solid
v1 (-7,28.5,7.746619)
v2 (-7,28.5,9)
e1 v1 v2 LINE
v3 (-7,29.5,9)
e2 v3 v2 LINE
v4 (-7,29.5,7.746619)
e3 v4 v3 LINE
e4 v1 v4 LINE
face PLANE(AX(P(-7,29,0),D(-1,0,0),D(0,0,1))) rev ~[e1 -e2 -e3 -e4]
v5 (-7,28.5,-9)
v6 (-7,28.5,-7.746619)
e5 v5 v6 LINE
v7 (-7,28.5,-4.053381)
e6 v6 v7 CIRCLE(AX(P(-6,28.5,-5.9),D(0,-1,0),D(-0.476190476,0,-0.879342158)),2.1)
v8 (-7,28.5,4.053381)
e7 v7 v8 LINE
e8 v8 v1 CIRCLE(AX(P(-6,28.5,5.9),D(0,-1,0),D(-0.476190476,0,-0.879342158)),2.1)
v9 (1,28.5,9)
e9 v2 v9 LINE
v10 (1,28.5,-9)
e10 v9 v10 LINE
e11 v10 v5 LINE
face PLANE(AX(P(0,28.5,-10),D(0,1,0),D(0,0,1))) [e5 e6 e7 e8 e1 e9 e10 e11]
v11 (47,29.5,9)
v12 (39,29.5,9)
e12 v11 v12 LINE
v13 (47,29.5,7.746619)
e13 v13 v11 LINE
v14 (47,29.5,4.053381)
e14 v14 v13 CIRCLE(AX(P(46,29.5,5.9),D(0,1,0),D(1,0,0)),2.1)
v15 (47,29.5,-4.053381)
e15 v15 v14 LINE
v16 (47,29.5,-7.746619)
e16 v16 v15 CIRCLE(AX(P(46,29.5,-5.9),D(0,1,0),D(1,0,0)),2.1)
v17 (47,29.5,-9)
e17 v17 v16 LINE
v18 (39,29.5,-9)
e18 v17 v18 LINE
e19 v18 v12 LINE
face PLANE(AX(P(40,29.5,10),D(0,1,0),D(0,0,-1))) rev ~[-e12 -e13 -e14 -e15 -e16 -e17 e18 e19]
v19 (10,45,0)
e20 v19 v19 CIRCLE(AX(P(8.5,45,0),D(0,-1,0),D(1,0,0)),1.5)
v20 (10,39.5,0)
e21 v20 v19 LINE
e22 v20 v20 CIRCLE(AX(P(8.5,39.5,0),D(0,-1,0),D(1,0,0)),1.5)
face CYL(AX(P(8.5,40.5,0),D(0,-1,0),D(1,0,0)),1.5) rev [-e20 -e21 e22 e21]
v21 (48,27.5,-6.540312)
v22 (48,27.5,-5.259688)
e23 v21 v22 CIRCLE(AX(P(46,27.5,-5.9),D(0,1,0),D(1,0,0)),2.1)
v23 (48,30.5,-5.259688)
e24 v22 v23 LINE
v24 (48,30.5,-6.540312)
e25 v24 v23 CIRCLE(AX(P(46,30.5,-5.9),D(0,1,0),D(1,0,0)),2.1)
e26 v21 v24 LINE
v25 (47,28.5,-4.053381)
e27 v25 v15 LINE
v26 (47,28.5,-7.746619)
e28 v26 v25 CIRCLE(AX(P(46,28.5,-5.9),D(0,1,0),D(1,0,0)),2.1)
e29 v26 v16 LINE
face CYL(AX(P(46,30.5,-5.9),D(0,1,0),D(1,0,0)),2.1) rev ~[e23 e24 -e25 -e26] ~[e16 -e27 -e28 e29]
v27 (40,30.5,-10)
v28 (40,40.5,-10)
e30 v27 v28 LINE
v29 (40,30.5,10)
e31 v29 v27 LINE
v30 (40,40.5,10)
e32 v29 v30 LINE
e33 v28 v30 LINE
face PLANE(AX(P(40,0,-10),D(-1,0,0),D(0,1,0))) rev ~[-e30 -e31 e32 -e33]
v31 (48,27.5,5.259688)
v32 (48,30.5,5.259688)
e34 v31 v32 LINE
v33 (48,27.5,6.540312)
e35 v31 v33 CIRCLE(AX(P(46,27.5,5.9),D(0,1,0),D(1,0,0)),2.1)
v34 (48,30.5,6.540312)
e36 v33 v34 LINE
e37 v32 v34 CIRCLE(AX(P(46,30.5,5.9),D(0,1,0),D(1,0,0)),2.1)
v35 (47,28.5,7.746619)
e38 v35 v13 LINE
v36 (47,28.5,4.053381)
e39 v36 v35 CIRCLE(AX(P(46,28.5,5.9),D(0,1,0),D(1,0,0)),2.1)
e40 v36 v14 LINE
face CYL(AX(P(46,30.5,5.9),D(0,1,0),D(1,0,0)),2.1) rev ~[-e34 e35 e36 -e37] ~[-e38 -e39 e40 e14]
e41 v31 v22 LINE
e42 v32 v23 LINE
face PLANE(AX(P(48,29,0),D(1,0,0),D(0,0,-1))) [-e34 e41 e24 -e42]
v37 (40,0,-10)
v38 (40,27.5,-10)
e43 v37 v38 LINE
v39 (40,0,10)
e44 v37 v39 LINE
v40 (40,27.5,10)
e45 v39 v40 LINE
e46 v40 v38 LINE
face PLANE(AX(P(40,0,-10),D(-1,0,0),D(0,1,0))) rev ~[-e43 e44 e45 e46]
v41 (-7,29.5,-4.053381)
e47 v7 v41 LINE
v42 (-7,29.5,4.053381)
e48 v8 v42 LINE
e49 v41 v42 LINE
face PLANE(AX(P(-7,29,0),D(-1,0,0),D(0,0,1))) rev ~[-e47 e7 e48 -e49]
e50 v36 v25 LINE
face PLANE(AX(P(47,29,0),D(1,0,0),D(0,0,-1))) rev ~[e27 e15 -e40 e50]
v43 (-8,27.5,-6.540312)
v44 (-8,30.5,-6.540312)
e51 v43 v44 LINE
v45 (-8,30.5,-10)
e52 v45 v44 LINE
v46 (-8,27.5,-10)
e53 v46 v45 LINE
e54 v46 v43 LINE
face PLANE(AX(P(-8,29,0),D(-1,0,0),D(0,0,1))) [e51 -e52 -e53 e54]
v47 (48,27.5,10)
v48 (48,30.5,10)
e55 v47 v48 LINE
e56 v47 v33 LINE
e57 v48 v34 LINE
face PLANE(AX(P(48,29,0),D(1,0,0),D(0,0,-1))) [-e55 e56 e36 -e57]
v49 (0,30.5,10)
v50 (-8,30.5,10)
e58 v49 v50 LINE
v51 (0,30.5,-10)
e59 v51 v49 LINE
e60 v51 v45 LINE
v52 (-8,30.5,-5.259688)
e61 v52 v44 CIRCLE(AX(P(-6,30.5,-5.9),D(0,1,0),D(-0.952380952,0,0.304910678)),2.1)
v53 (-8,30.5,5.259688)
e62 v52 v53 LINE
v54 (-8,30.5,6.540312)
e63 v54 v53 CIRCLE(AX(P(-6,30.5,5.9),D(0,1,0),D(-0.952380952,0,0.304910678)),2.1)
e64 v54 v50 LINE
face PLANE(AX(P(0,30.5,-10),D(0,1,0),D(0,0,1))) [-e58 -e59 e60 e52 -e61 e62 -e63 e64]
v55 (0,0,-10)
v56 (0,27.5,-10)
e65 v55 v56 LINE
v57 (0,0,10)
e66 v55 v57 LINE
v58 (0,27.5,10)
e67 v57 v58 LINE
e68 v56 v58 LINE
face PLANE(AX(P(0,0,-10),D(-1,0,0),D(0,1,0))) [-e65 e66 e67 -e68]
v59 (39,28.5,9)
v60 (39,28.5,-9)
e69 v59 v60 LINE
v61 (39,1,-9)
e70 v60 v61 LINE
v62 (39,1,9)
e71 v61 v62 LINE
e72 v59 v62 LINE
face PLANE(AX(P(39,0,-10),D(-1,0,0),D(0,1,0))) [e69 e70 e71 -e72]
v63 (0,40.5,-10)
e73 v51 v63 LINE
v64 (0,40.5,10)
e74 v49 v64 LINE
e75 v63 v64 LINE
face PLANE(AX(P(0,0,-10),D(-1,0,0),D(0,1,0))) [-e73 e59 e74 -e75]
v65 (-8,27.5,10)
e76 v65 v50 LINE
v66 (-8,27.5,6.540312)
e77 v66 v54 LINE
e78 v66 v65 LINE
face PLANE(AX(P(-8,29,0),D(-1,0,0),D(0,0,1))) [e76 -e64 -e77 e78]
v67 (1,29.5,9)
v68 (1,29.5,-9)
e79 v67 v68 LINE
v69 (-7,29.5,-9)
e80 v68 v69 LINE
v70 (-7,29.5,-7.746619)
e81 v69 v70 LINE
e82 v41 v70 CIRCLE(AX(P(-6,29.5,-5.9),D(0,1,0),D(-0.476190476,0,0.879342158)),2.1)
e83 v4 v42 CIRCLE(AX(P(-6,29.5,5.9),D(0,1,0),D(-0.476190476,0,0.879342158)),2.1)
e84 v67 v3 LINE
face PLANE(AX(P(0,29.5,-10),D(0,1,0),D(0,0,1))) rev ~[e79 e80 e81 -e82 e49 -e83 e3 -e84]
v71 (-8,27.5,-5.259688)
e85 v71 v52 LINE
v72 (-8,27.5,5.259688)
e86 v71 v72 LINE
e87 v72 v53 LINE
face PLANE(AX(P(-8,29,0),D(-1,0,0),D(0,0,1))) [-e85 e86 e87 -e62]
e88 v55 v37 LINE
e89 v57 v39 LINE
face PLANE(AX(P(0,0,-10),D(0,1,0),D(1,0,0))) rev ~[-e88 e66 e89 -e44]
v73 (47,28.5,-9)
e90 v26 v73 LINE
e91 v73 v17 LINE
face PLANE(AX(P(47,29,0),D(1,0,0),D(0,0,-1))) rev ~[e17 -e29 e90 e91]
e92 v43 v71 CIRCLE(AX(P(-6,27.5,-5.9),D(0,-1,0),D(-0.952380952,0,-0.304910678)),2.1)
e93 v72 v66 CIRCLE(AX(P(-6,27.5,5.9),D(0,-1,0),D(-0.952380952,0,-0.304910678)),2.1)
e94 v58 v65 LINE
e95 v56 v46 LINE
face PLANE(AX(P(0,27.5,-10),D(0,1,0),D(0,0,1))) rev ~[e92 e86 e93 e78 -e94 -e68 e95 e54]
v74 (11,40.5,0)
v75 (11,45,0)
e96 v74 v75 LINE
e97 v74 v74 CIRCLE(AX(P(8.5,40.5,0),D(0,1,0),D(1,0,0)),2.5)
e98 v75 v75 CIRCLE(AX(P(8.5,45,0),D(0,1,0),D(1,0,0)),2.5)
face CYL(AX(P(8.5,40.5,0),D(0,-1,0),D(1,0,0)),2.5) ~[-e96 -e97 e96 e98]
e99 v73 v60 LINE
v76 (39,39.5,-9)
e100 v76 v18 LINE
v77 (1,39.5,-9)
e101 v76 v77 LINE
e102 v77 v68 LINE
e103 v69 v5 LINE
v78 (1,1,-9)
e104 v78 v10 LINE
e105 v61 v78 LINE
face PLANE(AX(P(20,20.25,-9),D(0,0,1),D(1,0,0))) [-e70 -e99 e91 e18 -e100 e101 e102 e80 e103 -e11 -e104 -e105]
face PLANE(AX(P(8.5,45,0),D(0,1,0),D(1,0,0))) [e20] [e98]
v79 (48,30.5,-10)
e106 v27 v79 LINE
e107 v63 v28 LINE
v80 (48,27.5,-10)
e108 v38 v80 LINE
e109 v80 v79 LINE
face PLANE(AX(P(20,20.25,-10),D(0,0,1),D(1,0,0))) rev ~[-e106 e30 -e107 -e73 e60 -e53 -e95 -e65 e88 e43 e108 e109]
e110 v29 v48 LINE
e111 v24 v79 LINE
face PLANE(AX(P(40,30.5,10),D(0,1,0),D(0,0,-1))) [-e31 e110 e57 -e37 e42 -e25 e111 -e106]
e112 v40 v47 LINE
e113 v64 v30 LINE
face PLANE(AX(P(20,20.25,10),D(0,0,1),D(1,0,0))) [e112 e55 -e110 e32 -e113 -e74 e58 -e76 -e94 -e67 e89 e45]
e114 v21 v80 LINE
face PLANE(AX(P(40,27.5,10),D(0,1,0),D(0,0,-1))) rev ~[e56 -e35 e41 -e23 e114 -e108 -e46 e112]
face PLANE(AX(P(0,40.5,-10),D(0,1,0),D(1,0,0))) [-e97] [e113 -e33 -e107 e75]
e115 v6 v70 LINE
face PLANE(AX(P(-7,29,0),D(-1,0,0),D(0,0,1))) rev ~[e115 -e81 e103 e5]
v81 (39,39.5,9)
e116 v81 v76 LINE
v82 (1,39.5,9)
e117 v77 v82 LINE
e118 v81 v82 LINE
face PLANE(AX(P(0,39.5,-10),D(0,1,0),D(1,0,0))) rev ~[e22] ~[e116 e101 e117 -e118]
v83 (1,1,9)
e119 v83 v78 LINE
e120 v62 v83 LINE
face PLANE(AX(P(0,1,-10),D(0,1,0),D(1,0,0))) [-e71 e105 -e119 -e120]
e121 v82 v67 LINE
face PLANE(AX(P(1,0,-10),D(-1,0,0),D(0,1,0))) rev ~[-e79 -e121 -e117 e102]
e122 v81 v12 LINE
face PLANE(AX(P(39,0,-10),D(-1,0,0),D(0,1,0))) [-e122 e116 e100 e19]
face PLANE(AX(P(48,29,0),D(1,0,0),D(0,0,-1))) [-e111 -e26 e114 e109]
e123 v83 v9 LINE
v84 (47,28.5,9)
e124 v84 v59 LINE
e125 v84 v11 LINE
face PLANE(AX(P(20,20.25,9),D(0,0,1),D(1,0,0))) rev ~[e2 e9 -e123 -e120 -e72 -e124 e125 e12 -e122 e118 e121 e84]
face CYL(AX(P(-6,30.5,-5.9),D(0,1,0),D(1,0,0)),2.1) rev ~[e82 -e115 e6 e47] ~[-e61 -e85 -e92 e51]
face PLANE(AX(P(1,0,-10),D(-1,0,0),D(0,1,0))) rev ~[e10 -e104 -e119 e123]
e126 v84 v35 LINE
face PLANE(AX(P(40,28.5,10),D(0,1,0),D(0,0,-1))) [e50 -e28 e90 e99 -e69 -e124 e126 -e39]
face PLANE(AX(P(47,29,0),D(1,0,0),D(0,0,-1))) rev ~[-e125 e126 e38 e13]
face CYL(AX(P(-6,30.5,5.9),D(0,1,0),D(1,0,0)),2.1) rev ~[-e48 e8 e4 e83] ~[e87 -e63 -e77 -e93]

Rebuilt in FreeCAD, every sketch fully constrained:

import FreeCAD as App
import Part
import Sketcher


def faces_at(feature, points):
    """Names of the faces that lie closest to the given points."""
    faces = feature.Shape.Faces
    near = lambda p: min(range(len(faces)), key=lambda i: faces[i].distToShape(Part.Vertex(*p))[0])
    return sorted({f"Face{near(p) + 1}" for p in points})

doc = App.newDocument("Part")
body = doc.addObject("PartDesign::Body", "Body")

sketch1 = body.newObject("Sketcher::SketchObject", "Sketch")
sketch1.AttachmentSupport = (doc.getObject("XY_Plane"), [""])
sketch1.MapMode = "FlatFace"
sketch1.addGeometry(Part.LineSegment(App.Vector(0, 40, 0), App.Vector(0, 0, 0)), False)
sketch1.addGeometry(Part.LineSegment(App.Vector(0, 0, 0), App.Vector(40, 0, 0)), False)
sketch1.addGeometry(Part.LineSegment(App.Vector(40, 0, 0), App.Vector(40, 40, 0)), False)
sketch1.addGeometry(Part.LineSegment(App.Vector(40, 40, 0), App.Vector(0, 40, 0)), False)
sketch1.addConstraint(Sketcher.Constraint("Coincident", 0, 2, 1, 1))
sketch1.addConstraint(Sketcher.Constraint("Coincident", 1, 2, 2, 1))
sketch1.addConstraint(Sketcher.Constraint("Coincident", 2, 2, 3, 1))
sketch1.addConstraint(Sketcher.Constraint("Coincident", 3, 2, 0, 1))
sketch1.addConstraint(Sketcher.Constraint("Vertical", 0))
sketch1.addConstraint(Sketcher.Constraint("Horizontal", 1))
sketch1.addConstraint(Sketcher.Constraint("Vertical", 2))
sketch1.addConstraint(Sketcher.Constraint("Horizontal", 3))
sketch1.addConstraint(Sketcher.Constraint("Coincident", 0, 2, -1, 1))
sketch1.addConstraint(Sketcher.Constraint("DistanceX", 1, 1, 1, 2, 40.0))
sketch1.addConstraint(Sketcher.Constraint("DistanceY", 0, 2, 0, 1, 40.5))
pad1 = body.newObject("PartDesign::Pad", "Pad")
pad1.Profile = sketch1
pad1.Type = "TwoLengths"
pad1.Length = 10
pad1.Length2 = 10

sketch2 = body.newObject("Sketcher::SketchObject", "Sketch001")
sketch2.AttachmentSupport = (doc.getObject("YZ_Plane"), [""])
sketch2.MapMode = "FlatFace"
sketch2.AttachmentOffset = App.Placement(App.Vector(0, 0, 40), App.Rotation())
sketch2.addGeometry(Part.LineSegment(App.Vector(30.5, 10, 0), App.Vector(27.5, 10, 0)), False)
sketch2.addGeometry(Part.LineSegment(App.Vector(27.5, 10, 0), App.Vector(27.5, -10, 0)), False)
sketch2.addGeometry(Part.LineSegment(App.Vector(27.5, -10, 0), App.Vector(30.5, -10, 0)), False)
sketch2.addGeometry(Part.LineSegment(App.Vector(30.5, -10, 0), App.Vector(30.5, 10, 0)), False)
sketch2.addConstraint(Sketcher.Constraint("Coincident", 0, 2, 1, 1))
sketch2.addConstraint(Sketcher.Constraint("Coincident", 1, 2, 2, 1))
sketch2.addConstraint(Sketcher.Constraint("Coincident", 2, 2, 3, 1))
sketch2.addConstraint(Sketcher.Constraint("Coincident", 3, 2, 0, 1))
sketch2.addConstraint(Sketcher.Constraint("Horizontal", 0))
sketch2.addConstraint(Sketcher.Constraint("Vertical", 1))
sketch2.addConstraint(Sketcher.Constraint("Horizontal", 2))
sketch2.addConstraint(Sketcher.Constraint("Vertical", 3))
sketch2.addConstraint(Sketcher.Constraint("DistanceX", 0, 2, 0, 1, 3.0))
sketch2.addConstraint(Sketcher.Constraint("DistanceY", 1, 2, 1, 1, 20.0))
sketch2.addConstraint(Sketcher.Constraint("DistanceY", -1, 1, 0, 2, 10.0))
sketch2.addConstraint(Sketcher.Constraint("DistanceX", -1, 1, 0, 2, 27.5))
pad2 = body.newObject("PartDesign::Pad", "Pad001")
pad2.Profile = sketch2
pad2.Length = 8

sketch3 = body.newObject("Sketcher::SketchObject", "Sketch002")
sketch3.AttachmentSupport = (doc.getObject("YZ_Plane"), [""])
sketch3.MapMode = "FlatFace"
sketch3.addGeometry(Part.LineSegment(App.Vector(30.5, -10, 0), App.Vector(27.5, -10, 0)), False)
sketch3.addGeometry(Part.LineSegment(App.Vector(27.5, -10, 0), App.Vector(27.5, 10, 0)), False)
sketch3.addGeometry(Part.LineSegment(App.Vector(27.5, 10, 0), App.Vector(30.5, 10, 0)), False)
sketch3.addGeometry(Part.LineSegment(App.Vector(30.5, 10, 0), App.Vector(30.5, -10, 0)), False)
sketch3.addConstraint(Sketcher.Constraint("Coincident", 0, 2, 1, 1))
sketch3.addConstraint(Sketcher.Constraint("Coincident", 1, 2, 2, 1))
sketch3.addConstraint(Sketcher.Constraint("Coincident", 2, 2, 3, 1))
sketch3.addConstraint(Sketcher.Constraint("Coincident", 3, 2, 0, 1))
sketch3.addConstraint(Sketcher.Constraint("Horizontal", 0))
sketch3.addConstraint(Sketcher.Constraint("Vertical", 1))
sketch3.addConstraint(Sketcher.Constraint("Horizontal", 2))
sketch3.addConstraint(Sketcher.Constraint("Vertical", 3))
sketch3.addConstraint(Sketcher.Constraint("DistanceX", 0, 2, 0, 1, 3.0))
sketch3.addConstraint(Sketcher.Constraint("DistanceY", 1, 1, 1, 2, 20.0))
sketch3.addConstraint(Sketcher.Constraint("DistanceY", 0, 2, -1, 1, 10.0))
sketch3.addConstraint(Sketcher.Constraint("DistanceX", -1, 1, 0, 2, 27.5))
pad3 = body.newObject("PartDesign::Pad", "Pad002")
pad3.Profile = sketch3
pad3.Length = 8
pad3.Reversed = True

sketch4 = body.newObject("Sketcher::SketchObject", "Sketch003")
sketch4.AttachmentSupport = (doc.getObject("XZ_Plane"), [""])
sketch4.MapMode = "FlatFace"
sketch4.AttachmentOffset = App.Placement(App.Vector(0, 0, -40.5), App.Rotation())
sketch4.addGeometry(Part.Circle(App.Vector(8.5, 0, 0), App.Vector(0, 0, 1), 2.5), False)
sketch4.addConstraint(Sketcher.Constraint("PointOnObject", 0, 3, -1))
sketch4.addConstraint(Sketcher.Constraint("Diameter", 0, 5.0))
sketch4.addConstraint(Sketcher.Constraint("DistanceX", -1, 1, 0, 3, 8.5))
pad4 = body.newObject("PartDesign::Pad", "Pad003")
pad4.Profile = sketch4
pad4.Length = 4.5
pad4.Reversed = True
doc.recompute()

thickness = body.newObject("PartDesign::Thickness", "Thickness")
thickness.Base = (pad4, faces_at(pad4, [(8.5, 45, 0)]))
thickness.Value = 1
thickness.Reversed = True
thickness.Join = "Intersection"

sketch5 = body.newObject("Sketcher::SketchObject", "Sketch004")
sketch5.AttachmentSupport = (doc.getObject("XZ_Plane"), [""])
sketch5.MapMode = "FlatFace"
sketch5.AttachmentOffset = App.Placement(App.Vector(0, 0, -30.5), App.Rotation())
sketch5.addGeometry(Part.Circle(App.Vector(-6, -5.9, 0), App.Vector(0, 0, 1), 2.1), False)
sketch5.addGeometry(Part.Circle(App.Vector(-6, 5.9, 0), App.Vector(0, 0, 1), 2.1), False)
sketch5.addConstraint(Sketcher.Constraint("Equal", 0, 1))
sketch5.addConstraint(Sketcher.Constraint("Symmetric", 0, 3, 1, 3, -1))
sketch5.addConstraint(Sketcher.Constraint("Diameter", 0, 4.2))
sketch5.addConstraint(Sketcher.Constraint("DistanceX", 0, 3, -1, 1, 6.0))
sketch5.addConstraint(Sketcher.Constraint("DistanceY", 0, 3, -1, 1, 5.9))
pocket1 = body.newObject("PartDesign::Pocket", "Pocket")
pocket1.Profile = sketch5
pocket1.Length = 10
pocket1.Reversed = True

sketch6 = body.newObject("Sketcher::SketchObject", "Sketch005")
sketch6.AttachmentSupport = (doc.getObject("XZ_Plane"), [""])
sketch6.MapMode = "FlatFace"
sketch6.AttachmentOffset = App.Placement(App.Vector(0, 0, -30.5), App.Rotation())
sketch6.addGeometry(Part.Circle(App.Vector(46, -5.9, 0), App.Vector(0, 0, 1), 2.1), False)
sketch6.addGeometry(Part.Circle(App.Vector(46, 5.9, 0), App.Vector(0, 0, 1), 2.1), False)
sketch6.addConstraint(Sketcher.Constraint("Equal", 0, 1))
sketch6.addConstraint(Sketcher.Constraint("Symmetric", 0, 3, 1, 3, -1))
sketch6.addConstraint(Sketcher.Constraint("Diameter", 0, 4.2))
sketch6.addConstraint(Sketcher.Constraint("DistanceX", -1, 1, 0, 3, 46.0))
sketch6.addConstraint(Sketcher.Constraint("DistanceY", 0, 3, -1, 1, 5.9))
pocket2 = body.newObject("PartDesign::Pocket", "Pocket001")
pocket2.Profile = sketch6
pocket2.Length = 10
pocket2.Reversed = True

doc.recompute()
